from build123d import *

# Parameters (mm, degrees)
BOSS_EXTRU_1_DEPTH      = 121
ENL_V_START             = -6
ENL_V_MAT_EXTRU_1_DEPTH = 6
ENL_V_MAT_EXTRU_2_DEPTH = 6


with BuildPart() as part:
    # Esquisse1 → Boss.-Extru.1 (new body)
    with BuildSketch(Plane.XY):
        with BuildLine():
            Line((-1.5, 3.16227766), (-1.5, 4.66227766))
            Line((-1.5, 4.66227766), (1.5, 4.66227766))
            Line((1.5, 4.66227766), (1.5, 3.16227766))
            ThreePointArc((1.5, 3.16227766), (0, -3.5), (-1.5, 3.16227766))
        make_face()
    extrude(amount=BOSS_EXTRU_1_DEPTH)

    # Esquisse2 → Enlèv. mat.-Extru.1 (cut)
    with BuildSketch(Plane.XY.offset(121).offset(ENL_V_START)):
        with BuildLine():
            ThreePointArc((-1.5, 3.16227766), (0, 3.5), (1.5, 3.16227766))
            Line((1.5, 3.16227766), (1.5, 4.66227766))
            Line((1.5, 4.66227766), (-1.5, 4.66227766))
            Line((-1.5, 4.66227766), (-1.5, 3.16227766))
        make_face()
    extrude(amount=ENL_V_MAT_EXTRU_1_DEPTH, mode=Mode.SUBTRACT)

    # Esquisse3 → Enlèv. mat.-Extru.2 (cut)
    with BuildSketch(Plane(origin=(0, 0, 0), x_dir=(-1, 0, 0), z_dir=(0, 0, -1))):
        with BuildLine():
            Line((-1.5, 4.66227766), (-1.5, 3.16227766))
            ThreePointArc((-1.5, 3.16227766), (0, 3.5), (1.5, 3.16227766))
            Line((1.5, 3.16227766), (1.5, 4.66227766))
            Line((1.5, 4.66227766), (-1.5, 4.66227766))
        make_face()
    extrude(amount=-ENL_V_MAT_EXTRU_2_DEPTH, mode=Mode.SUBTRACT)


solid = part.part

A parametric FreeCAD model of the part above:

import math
import FreeCAD as App
import Part
import Sketcher
from FreeCAD import Vector
Q = App.Units.Quantity

doc = App.newDocument("Part")
params = doc.addObject("Spreadsheet::Sheet", "Params")
for row, (alias, value) in enumerate([
    ("sketch1_radius", "3.5 mm"),
    ("sketch1_width", "3 mm"),
    ("sketch1_height", "1.5 mm"),
    ("pad1_length", "121 mm"),
    ("sketch2_radius", "3.5 mm"),
    ("sketch2_width", "3 mm"),
    ("sketch2_height", "1.5 mm"),
    ("pocket1_length", "6 mm"),
    ("sketch3_radius", "3.5 mm"),
    ("sketch3_width", "3 mm"),
    ("sketch3_height", "1.5 mm"),
    ("pocket2_length", "6 mm"),
], start=1):
    params.set(f"A{row}", alias)
    params.set(f"B{row}", "=" + value)
    params.setAlias(f"B{row}", alias)

body = doc.addObject("PartDesign::Body", "Body")

# Sketch on XY plane
sketch1 = body.newObject("Sketcher::SketchObject", "Sketch")
sketch1.AttachmentSupport = (doc.getObject("XY_Plane"), [""])
sketch1.MapMode = "FlatFace"
sketch1.addGeometry([
    Part.LineSegment(Vector(-1.5, 4.7, 0), Vector(-1.5, 3.2, 0)),
    Part.ArcOfCircle(Part.Circle(Vector(0, 0, 0), Vector(0, 0, 1), 3.5), math.radians(115), math.radians(425)),
    Part.LineSegment(Vector(1.5, 3.2, 0), Vector(1.5, 4.7, 0)),
    Part.LineSegment(Vector(1.5, 4.7, 0), Vector(-1.5, 4.7, 0)),
], False)
sketch1.addConstraint([
    Sketcher.Constraint("Coincident", 0, 2, 1, 1),
    Sketcher.Constraint("Coincident", 1, 2, 2, 1),
    Sketcher.Constraint("Coincident", 2, 2, 3, 1),
    Sketcher.Constraint("Coincident", 3, 2, 0, 1),
    Sketcher.Constraint("Vertical", 0),
    Sketcher.Constraint("Vertical", 2),
    Sketcher.Constraint("Horizontal", 3),
    Sketcher.Constraint("Coincident", 1, 3, -1, 1),
    Sketcher.Constraint("Horizontal", 0, 2, 1, 2),
    Sketcher.Constraint("Radius", 1, Q("3.5 mm")),
    Sketcher.Constraint("DistanceX", 3, 2, 3, 1, Q("3 mm")),
    Sketcher.Constraint("DistanceY", 0, 2, 0, 1, Q("1.5 mm")),
])
sketch1.setExpression("Constraints[9]", "Params.sketch1_radius")
sketch1.setExpression("Constraints[10]", "Params.sketch1_width")
sketch1.setExpression("Constraints[11]", "Params.sketch1_height")
pad1 = body.newObject("PartDesign::Pad", "Pad")
pad1.Profile = sketch1
pad1.setExpression("Length", "Params.pad1_length")

# Sketch on XY plane
sketch2 = body.newObject("Sketcher::SketchObject", "Sketch001")
sketch2.AttachmentSupport = (doc.getObject("XY_Plane"), [""])
sketch2.MapMode = "FlatFace"
sketch2.AttachmentOffset = App.Placement(Vector(0, 0, 115), App.Rotation())
sketch2.addGeometry([
    Part.ArcOfCircle(Part.Circle(Vector(0, 0, 0), Vector(0, 0, 1), 3.5), math.radians(65), math.radians(115)),
    Part.LineSegment(Vector(1.5, 3.2, 0), Vector(1.5, 4.7, 0)),
    Part.LineSegment(Vector(1.5, 4.7, 0), Vector(-1.5, 4.7, 0)),
    Part.LineSegment(Vector(-1.5, 4.7, 0), Vector(-1.5, 3.2, 0)),
], False)
sketch2.addConstraint([
    Sketcher.Constraint("Coincident", 0, 1, 1, 1),
    Sketcher.Constraint("Coincident", 1, 2, 2, 1),
    Sketcher.Constraint("Coincident", 2, 2, 3, 1),
    Sketcher.Constraint("Coincident", 3, 2, 0, 2),
    Sketcher.Constraint("Vertical", 1),
    Sketcher.Constraint("Horizontal", 2),
    Sketcher.Constraint("Vertical", 3),
    Sketcher.Constraint("Coincident", 0, 3, -1, 1),
    Sketcher.Constraint("Horizontal", 0, 1, 3, 2),
    Sketcher.Constraint("Radius", 0, Q("3.5 mm")),
    Sketcher.Constraint("DistanceX", 2, 2, 2, 1, Q("3 mm")),
    Sketcher.Constraint("DistanceY", 1, 1, 1, 2, Q("1.5 mm")),
])
sketch2.setExpression("Constraints[9]", "Params.sketch2_radius")
sketch2.setExpression("Constraints[10]", "Params.sketch2_width")
sketch2.setExpression("Constraints[11]", "Params.sketch2_height")
pocket1 = body.newObject("PartDesign::Pocket", "Pocket")
pocket1.Profile = sketch2
pocket1.setExpression("Length", "Params.pocket1_length")
pocket1.Reversed = True

# Sketch on XY plane
sketch3 = body.newObject("Sketcher::SketchObject", "Sketch002")
sketch3.AttachmentSupport = (doc.getObject("XY_Plane"), [""])
sketch3.MapMode = "FlatFace"
sketch3.addGeometry([
    Part.LineSegment(Vector(1.5, 4.7, 0), Vector(1.5, 3.2, 0)),
    Part.ArcOfCircle(Part.Circle(Vector(0, 0, 0), Vector(0, 0, 1), 3.5), math.radians(65), math.radians(115)),
    Part.LineSegment(Vector(-1.5, 3.2, 0), Vector(-1.5, 4.7, 0)),
    Part.LineSegment(Vector(-1.5, 4.7, 0), Vector(1.5, 4.7, 0)),
], False)
sketch3.addConstraint([
    Sketcher.Constraint("Coincident", 0, 2, 1, 1),
    Sketcher.Constraint("Coincident", 1, 2, 2, 1),
    Sketcher.Constraint("Coincident", 2, 2, 3, 1),
    Sketcher.Constraint("Coincident", 3, 2, 0, 1),
    Sketcher.Constraint("Vertical", 0),
    Sketcher.Constraint("Vertical", 2),
    Sketcher.Constraint("Horizontal", 3),
    Sketcher.Constraint("Coincident", 1, 3, -1, 1),
    Sketcher.Constraint("Horizontal", 0, 2, 1, 2),
    Sketcher.Constraint("Radius", 1, Q("3.5 mm")),
    Sketcher.Constraint("DistanceX", 3, 1, 3, 2, Q("3 mm")),
    Sketcher.Constraint("DistanceY", 0, 2, 0, 1, Q("1.5 mm")),
])
sketch3.setExpression("Constraints[9]", "Params.sketch3_radius")
sketch3.setExpression("Constraints[10]", "Params.sketch3_width")
sketch3.setExpression("Constraints[11]", "Params.sketch3_height")
pocket2 = body.newObject("PartDesign::Pocket", "Pocket001")
pocket2.Profile = sketch3
pocket2.setExpression("Length", "Params.pocket2_length")
pocket2.Reversed = True

doc.recompute()
